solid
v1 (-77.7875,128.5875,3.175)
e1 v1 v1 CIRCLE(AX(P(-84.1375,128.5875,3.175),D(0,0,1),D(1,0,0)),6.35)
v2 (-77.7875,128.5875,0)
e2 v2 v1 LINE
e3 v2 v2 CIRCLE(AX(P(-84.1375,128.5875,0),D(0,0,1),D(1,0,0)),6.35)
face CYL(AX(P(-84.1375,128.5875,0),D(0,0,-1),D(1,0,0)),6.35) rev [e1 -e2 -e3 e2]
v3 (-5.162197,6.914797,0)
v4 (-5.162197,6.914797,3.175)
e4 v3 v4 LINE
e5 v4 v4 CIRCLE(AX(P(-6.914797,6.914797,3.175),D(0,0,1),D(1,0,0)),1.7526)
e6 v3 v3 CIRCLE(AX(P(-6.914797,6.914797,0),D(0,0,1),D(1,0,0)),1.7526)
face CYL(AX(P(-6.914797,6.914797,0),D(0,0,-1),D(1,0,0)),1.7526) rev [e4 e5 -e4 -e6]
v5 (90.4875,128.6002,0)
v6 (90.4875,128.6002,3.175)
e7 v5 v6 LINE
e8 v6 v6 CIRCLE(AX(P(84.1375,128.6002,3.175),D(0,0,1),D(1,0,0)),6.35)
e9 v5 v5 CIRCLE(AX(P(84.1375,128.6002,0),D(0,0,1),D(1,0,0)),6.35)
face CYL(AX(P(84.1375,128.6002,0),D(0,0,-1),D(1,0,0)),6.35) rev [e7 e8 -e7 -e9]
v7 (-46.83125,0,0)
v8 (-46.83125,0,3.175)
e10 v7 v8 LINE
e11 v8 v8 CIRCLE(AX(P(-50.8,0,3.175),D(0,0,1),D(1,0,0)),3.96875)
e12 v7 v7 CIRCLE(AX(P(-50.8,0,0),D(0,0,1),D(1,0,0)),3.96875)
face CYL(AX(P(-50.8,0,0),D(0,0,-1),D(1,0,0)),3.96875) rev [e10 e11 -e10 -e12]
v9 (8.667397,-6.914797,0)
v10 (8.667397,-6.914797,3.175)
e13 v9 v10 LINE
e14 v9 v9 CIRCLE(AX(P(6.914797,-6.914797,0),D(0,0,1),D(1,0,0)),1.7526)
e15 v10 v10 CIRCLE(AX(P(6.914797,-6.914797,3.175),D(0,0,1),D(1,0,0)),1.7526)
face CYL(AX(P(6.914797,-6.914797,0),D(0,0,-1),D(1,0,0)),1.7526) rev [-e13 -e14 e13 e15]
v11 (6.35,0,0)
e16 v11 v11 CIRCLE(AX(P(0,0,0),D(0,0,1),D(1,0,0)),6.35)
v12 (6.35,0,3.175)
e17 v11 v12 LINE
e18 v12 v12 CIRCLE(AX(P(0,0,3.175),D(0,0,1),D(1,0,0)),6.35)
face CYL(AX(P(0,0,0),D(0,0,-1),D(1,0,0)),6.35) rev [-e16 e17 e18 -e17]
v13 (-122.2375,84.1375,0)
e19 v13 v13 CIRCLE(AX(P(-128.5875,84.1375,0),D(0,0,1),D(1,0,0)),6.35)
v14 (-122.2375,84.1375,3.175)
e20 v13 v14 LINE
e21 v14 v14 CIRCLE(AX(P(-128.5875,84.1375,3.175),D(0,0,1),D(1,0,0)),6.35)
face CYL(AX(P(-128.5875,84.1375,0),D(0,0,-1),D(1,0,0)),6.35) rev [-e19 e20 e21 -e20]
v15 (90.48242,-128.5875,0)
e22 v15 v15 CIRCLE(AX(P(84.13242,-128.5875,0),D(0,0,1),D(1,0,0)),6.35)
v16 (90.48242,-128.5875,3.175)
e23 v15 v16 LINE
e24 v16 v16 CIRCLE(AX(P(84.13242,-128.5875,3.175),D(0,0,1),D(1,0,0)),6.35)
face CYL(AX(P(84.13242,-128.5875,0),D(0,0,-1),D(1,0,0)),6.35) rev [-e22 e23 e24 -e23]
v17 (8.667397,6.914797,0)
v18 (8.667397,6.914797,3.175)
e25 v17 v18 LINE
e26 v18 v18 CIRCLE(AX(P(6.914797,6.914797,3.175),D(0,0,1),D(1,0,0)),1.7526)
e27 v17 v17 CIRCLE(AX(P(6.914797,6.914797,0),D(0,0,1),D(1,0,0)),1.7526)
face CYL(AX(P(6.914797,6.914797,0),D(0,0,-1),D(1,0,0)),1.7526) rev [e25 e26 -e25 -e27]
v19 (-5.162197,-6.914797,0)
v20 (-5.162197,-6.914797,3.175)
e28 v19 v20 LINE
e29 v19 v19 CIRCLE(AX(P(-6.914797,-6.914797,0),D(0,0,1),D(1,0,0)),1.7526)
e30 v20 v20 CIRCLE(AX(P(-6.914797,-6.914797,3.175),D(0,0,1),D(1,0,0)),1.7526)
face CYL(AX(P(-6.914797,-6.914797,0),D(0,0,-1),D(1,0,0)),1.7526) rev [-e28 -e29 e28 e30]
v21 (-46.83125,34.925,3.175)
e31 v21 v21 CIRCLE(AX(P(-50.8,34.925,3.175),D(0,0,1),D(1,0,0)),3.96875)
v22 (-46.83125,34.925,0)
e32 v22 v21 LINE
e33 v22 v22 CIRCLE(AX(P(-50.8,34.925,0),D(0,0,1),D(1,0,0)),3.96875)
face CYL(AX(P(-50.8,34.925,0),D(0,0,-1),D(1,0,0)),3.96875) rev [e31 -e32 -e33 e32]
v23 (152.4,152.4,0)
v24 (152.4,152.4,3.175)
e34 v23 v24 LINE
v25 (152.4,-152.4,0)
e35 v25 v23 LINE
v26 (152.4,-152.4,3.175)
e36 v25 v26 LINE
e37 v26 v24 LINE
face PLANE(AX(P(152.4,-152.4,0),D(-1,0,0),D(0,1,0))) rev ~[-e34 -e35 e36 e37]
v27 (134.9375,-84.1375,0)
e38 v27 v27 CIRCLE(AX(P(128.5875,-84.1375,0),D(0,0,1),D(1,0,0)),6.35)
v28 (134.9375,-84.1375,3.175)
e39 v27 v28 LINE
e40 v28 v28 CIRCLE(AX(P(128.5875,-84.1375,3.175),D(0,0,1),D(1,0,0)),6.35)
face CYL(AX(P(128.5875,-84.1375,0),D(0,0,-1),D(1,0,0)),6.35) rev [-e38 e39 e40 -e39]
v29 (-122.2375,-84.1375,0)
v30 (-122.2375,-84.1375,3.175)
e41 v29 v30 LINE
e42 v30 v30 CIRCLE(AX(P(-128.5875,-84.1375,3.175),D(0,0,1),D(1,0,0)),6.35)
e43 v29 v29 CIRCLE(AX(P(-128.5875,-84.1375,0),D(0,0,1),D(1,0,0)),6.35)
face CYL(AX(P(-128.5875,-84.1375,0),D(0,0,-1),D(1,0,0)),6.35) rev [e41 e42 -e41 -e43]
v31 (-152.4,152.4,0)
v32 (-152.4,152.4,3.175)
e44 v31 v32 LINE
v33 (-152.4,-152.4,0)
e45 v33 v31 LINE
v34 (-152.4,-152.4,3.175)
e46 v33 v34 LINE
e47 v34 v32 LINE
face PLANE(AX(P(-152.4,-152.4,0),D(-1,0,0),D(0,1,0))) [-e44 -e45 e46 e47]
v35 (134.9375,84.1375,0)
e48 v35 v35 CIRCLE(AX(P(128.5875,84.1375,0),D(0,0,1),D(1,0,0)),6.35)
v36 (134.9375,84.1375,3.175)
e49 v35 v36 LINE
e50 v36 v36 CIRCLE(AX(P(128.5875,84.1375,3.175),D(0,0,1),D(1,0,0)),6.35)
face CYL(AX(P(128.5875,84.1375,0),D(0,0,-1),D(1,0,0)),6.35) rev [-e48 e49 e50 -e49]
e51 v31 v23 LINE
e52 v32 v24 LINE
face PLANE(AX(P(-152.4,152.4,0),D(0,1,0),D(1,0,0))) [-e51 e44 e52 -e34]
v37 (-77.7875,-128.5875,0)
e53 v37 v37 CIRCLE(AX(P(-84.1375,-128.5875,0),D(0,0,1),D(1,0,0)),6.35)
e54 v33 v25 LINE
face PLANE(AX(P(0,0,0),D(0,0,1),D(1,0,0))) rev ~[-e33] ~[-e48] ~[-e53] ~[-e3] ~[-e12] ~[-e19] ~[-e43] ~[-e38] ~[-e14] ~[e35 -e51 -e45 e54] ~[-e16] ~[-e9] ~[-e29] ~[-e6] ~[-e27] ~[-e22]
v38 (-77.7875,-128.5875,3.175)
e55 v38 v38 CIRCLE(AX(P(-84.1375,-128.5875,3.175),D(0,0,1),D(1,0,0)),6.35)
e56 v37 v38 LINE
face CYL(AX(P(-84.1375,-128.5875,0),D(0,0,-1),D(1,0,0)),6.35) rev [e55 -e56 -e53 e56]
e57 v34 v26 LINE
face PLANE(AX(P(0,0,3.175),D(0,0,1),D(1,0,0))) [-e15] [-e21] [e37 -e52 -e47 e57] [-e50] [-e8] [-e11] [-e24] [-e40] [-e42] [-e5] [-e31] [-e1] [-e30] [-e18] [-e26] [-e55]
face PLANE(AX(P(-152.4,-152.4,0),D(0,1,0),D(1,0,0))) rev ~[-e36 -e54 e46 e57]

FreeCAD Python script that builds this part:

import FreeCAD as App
import Part
import Sketcher
from FreeCAD import Vector
Q = App.Units.Quantity


def add_polygon(sketch, points):
    """Adds a closed chain of lines whose ends are joined by coincident constraints."""
    first, n = sketch.GeometryCount, len(points)
    for a, b in zip(points, points[1:] + points[:1]):
        sketch.addGeometry(Part.LineSegment(App.Vector(*a, 0), App.Vector(*b, 0)), False)
    for i in range(n):
        sketch.addConstraint(Sketcher.Constraint("Coincident", first + i, 2, first + (i + 1) % n, 1))

doc = App.newDocument("Part")
params = doc.addObject("Spreadsheet::Sheet", "Params")
for row, (alias, value) in enumerate([
    ("sketch1_diameter", "0.5 in"),
    ("sketch1_width", "12 in"),
    ("sketch1_diameter2", "0.3125 in"),
    ("sketch1_diameter3", "0.138 in"),
    ("pad1_length", "0.125 in"),
], start=1):
    params.set(f"A{row}", alias)
    params.set(f"B{row}", "=" + value)
    params.setAlias(f"B{row}", alias)

body = doc.addObject("PartDesign::Body", "Body")

# Sketch on XY plane
sketch1 = doc.addObject("Sketcher::SketchObject", "Sketch")
body.addObject(sketch1)
sketch1.AttachmentSupport = (doc.XY_Plane, [""])
sketch1.MapMode = "FlatFace"
add_polygon(sketch1, [(-152.4, 152.4), (-152.4, -152.4), (152.4, -152.4), (152.4, 152.4)])  # lines 0-3
sketch1.addGeometry(Part.Circle(Vector(-84.1375, -128.5875, 0), Vector(0, 0, 1), 6.35), False)  # 4
sketch1.addGeometry(Part.Circle(Vector(-128.5875, -84.1375, 0), Vector(0, 0, 1), 6.35), False)  # 5
sketch1.addGeometry(Part.Circle(Vector(-50.8, 0, 0), Vector(0, 0, 1), 3.96875), False)  # 6
sketch1.addGeometry(Part.Circle(Vector(-6.914797, -6.914797, 0), Vector(0, 0, 1), 1.7526), False)  # 7
sketch1.addGeometry(Part.Circle(Vector(84.13242, -128.5875, 0), Vector(0, 0, 1), 6.35), False)  # 8
sketch1.addGeometry(Part.Circle(Vector(128.5875, -84.1375, 0), Vector(0, 0, 1), 6.35), False)  # 9
sketch1.addGeometry(Part.Circle(Vector(6.914797, -6.914797, 0), Vector(0, 0, 1), 1.7526), False)  # 10
sketch1.addGeometry(Part.Circle(Vector(0, 0, 0), Vector(0, 0, 1), 6.35), False)  # 11
sketch1.addGeometry(Part.Circle(Vector(-6.914797, 6.914797, 0), Vector(0, 0, 1), 1.7526), False)  # 12
sketch1.addGeometry(Part.Circle(Vector(-50.8, 34.925, 0), Vector(0, 0, 1), 3.96875), False)  # 13
sketch1.addGeometry(Part.Circle(Vector(-128.5875, 84.1375, 0), Vector(0, 0, 1), 6.35), False)  # 14
sketch1.addGeometry(Part.Circle(Vector(-84.1375, 128.5875, 0), Vector(0, 0, 1), 6.35), False)  # 15
sketch1.addGeometry(Part.Circle(Vector(6.914797, 6.914797, 0), Vector(0, 0, 1), 1.7526), False)  # 16
sketch1.addGeometry(Part.Circle(Vector(128.5875, 84.1375, 0), Vector(0, 0, 1), 6.35), False)  # 17
sketch1.addGeometry(Part.Circle(Vector(84.1375, 128.6002, 0), Vector(0, 0, 1), 6.35), False)  # 18
sketch1.addConstraint([
    Sketcher.Constraint("Vertical", 0),
    Sketcher.Constraint("Horizontal", 1),
    Sketcher.Constraint("Vertical", 2),
    Sketcher.Constraint("Horizontal", 3),
    Sketcher.Constraint("Coincident", 11, 3, -1, 1),
    Sketcher.Constraint("Equal", 4, 5),
    Sketcher.Constraint("Equal", 5, 8),
    Sketcher.Constraint("Equal", 8, 9),
    Sketcher.Constraint("Equal", 7, 10),
    Sketcher.Constraint("Equal", 9, 11),
    Sketcher.Constraint("Equal", 10, 12),
    Sketcher.Constraint("Equal", 6, 13),
    Sketcher.Constraint("Equal", 11, 14),
    Sketcher.Constraint("Equal", 14, 15),
    Sketcher.Constraint("Equal", 12, 16),
    Sketcher.Constraint("Equal", 15, 17),
    Sketcher.Constraint("Equal", 17, 18),
    Sketcher.Constraint("Symmetric", 10, 3, 12, 3, -1, 1),
    Sketcher.Constraint("Symmetric", 9, 3, 14, 3, -1, 1),
    Sketcher.Constraint("Symmetric", 7, 3, 16, 3, -1, 1),
    Sketcher.Constraint("Symmetric", 5, 3, 17, 3, -1, 1),
    Sketcher.Constraint("Symmetric", 0, 2, 2, 2, -1, 1),
    Sketcher.Constraint("Symmetric", 5, 3, 9, 3, -2),
    Sketcher.Constraint("Symmetric", 7, 3, 10, 3, -2),
    Sketcher.Constraint("Symmetric", 4, 3, 15, 3, -1),
    Sketcher.Constraint("PointOnObject", 6, 3, -1),
    Sketcher.Constraint("Horizontal", 4, 3, 8, 3),
    Sketcher.Constraint("Vertical", 6, 3, 13, 3),
    Sketcher.Constraint("Equal", 3, 0),
    Sketcher.Constraint("Diameter", 4, Q("0.5 in")),
    Sketcher.Constraint("DistanceX", 1, 1, 1, 2, Q("12 in")),
    Sketcher.Constraint("Diameter", 6, Q("0.3125 in")),
    Sketcher.Constraint("Diameter", 7, Q("0.138 in")),
    Sketcher.Constraint("DistanceX", 6, 3, -1, 1, Q("2 in")),
    Sketcher.Constraint("DistanceX", 5, 3, 4, 3, Q("1.75 in")),
    Sketcher.Constraint("DistanceY", 4, 3, 5, 3, Q("1.75 in")),
    Sketcher.Constraint("DistanceX", 18, 3, 17, 3, Q("1.75 in")),
    Sketcher.Constraint("DistanceX", 4, 3, -1, 1, Q("3.3125 in")),
    Sketcher.Constraint("DistanceY", 4, 3, -1, 1, Q("5.0625 in")),
    Sketcher.Constraint("DistanceY", -1, 1, 13, 3, Q("1.375 in")),
    Sketcher.Constraint("DistanceY", -1, 1, 18, 3, Q("5.063 in")),
    Sketcher.Constraint("DistanceX", -1, 1, 8, 3, Q("3.3123 in")),
    Sketcher.Constraint("DistanceX", 7, 3, -1, 1, 6.914797),
    Sketcher.Constraint("DistanceY", 7, 3, -1, 1, 6.914797),
])
sketch1.setExpression("Constraints[33]", "Params.sketch1_diameter")
sketch1.setExpression("Constraints[34]", "Params.sketch1_width")
sketch1.setExpression("Constraints[35]", "Params.sketch1_diameter2")
sketch1.setExpression("Constraints[36]", "Params.sketch1_diameter3")
pad1 = doc.addObject("PartDesign::Pad", "Pad")
body.addObject(pad1)
pad1.Profile = sketch1
pad1.setExpression("Length", "Params.pad1_length")

doc.recompute()
